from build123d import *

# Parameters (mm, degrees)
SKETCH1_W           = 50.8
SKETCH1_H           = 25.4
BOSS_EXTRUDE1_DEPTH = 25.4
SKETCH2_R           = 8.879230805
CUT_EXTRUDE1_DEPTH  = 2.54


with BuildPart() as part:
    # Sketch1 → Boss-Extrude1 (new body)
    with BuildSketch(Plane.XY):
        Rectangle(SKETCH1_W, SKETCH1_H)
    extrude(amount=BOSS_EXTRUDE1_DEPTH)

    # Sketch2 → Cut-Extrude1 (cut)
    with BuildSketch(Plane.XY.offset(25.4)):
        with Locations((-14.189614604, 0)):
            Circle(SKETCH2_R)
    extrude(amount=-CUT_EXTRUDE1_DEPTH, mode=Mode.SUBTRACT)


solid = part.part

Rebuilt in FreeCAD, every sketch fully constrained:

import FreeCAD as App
import Part
import Sketcher
Q = App.Units.Quantity


def add_polygon(sketch, points):
    """Adds a closed chain of lines whose ends are joined by coincident constraints."""
    first, n = sketch.GeometryCount, len(points)
    for a, b in zip(points, points[1:] + points[:1]):
        sketch.addGeometry(Part.LineSegment(App.Vector(*a, 0), App.Vector(*b, 0)), False)
    for i in range(n):
        sketch.addConstraint(Sketcher.Constraint("Coincident", first + i, 2, first + (i + 1) % n, 1))

doc = App.newDocument("Part")
params = doc.addObject("Spreadsheet::Sheet", "Params")
for row, (alias, value) in enumerate([
    ("sketch1_width", "2 in"),
    ("sketch1_height", "1 in"),
    ("pad1_length", "1 in"),
    ("pocket1_length", "0.1 in"),
], start=1):
    params.set(f"A{row}", alias)
    params.set(f"B{row}", "=" + value)
    params.setAlias(f"B{row}", alias)

body = doc.addObject("PartDesign::Body", "Body")

sketch1 = body.newObject("Sketcher::SketchObject", "Sketch")
sketch1.AttachmentSupport = (doc.getObject("XY_Plane"), [""])
sketch1.MapMode = "FlatFace"
add_polygon(sketch1, [(-25, 13), (-25, -13), (25, -13), (25, 13)])
sketch1.addConstraint([
    Sketcher.Constraint("Vertical", 0),
    Sketcher.Constraint("Horizontal", 1),
    Sketcher.Constraint("Vertical", 2),
    Sketcher.Constraint("Horizontal", 3),
    Sketcher.Constraint("Symmetric", 0, 2, 2, 2, -1, 1),
    Sketcher.Constraint("DistanceX", 1, 1, 1, 2, Q("2 in")),
    Sketcher.Constraint("DistanceY", 0, 2, 0, 1, Q("1 in")),
])
sketch1.setExpression("Constraints[9]", "Params.sketch1_width")
sketch1.setExpression("Constraints[10]", "Params.sketch1_height")
pad1 = body.newObject("PartDesign::Pad", "Pad")
pad1.Profile = sketch1
pad1.setExpression("Length", "Params.pad1_length")

sketch2 = body.newObject("Sketcher::SketchObject", "Sketch001")
sketch2.AttachmentSupport = (doc.getObject("XY_Plane"), [""])
sketch2.MapMode = "FlatFace"
sketch2.AttachmentOffset = App.Placement(App.Vector(0, 0, 1 * 25.4), App.Rotation())
sketch2.addGeometry(Part.Circle(App.Vector(-14, 0, 0), App.Vector(0, 0, 1), 9), False)
sketch2.addConstraint([
    Sketcher.Constraint("PointOnObject", 0, 3, -1),
    Sketcher.Constraint("Diameter", 0, 17.758462),
    Sketcher.Constraint("DistanceX", 0, 3, -1, 1, 14.189615),
])
pocket1 = body.newObject("PartDesign::Pocket", "Pocket")
pocket1.Profile = sketch2
pocket1.setExpression("Length", "Params.pocket1_length")

doc.recompute()
